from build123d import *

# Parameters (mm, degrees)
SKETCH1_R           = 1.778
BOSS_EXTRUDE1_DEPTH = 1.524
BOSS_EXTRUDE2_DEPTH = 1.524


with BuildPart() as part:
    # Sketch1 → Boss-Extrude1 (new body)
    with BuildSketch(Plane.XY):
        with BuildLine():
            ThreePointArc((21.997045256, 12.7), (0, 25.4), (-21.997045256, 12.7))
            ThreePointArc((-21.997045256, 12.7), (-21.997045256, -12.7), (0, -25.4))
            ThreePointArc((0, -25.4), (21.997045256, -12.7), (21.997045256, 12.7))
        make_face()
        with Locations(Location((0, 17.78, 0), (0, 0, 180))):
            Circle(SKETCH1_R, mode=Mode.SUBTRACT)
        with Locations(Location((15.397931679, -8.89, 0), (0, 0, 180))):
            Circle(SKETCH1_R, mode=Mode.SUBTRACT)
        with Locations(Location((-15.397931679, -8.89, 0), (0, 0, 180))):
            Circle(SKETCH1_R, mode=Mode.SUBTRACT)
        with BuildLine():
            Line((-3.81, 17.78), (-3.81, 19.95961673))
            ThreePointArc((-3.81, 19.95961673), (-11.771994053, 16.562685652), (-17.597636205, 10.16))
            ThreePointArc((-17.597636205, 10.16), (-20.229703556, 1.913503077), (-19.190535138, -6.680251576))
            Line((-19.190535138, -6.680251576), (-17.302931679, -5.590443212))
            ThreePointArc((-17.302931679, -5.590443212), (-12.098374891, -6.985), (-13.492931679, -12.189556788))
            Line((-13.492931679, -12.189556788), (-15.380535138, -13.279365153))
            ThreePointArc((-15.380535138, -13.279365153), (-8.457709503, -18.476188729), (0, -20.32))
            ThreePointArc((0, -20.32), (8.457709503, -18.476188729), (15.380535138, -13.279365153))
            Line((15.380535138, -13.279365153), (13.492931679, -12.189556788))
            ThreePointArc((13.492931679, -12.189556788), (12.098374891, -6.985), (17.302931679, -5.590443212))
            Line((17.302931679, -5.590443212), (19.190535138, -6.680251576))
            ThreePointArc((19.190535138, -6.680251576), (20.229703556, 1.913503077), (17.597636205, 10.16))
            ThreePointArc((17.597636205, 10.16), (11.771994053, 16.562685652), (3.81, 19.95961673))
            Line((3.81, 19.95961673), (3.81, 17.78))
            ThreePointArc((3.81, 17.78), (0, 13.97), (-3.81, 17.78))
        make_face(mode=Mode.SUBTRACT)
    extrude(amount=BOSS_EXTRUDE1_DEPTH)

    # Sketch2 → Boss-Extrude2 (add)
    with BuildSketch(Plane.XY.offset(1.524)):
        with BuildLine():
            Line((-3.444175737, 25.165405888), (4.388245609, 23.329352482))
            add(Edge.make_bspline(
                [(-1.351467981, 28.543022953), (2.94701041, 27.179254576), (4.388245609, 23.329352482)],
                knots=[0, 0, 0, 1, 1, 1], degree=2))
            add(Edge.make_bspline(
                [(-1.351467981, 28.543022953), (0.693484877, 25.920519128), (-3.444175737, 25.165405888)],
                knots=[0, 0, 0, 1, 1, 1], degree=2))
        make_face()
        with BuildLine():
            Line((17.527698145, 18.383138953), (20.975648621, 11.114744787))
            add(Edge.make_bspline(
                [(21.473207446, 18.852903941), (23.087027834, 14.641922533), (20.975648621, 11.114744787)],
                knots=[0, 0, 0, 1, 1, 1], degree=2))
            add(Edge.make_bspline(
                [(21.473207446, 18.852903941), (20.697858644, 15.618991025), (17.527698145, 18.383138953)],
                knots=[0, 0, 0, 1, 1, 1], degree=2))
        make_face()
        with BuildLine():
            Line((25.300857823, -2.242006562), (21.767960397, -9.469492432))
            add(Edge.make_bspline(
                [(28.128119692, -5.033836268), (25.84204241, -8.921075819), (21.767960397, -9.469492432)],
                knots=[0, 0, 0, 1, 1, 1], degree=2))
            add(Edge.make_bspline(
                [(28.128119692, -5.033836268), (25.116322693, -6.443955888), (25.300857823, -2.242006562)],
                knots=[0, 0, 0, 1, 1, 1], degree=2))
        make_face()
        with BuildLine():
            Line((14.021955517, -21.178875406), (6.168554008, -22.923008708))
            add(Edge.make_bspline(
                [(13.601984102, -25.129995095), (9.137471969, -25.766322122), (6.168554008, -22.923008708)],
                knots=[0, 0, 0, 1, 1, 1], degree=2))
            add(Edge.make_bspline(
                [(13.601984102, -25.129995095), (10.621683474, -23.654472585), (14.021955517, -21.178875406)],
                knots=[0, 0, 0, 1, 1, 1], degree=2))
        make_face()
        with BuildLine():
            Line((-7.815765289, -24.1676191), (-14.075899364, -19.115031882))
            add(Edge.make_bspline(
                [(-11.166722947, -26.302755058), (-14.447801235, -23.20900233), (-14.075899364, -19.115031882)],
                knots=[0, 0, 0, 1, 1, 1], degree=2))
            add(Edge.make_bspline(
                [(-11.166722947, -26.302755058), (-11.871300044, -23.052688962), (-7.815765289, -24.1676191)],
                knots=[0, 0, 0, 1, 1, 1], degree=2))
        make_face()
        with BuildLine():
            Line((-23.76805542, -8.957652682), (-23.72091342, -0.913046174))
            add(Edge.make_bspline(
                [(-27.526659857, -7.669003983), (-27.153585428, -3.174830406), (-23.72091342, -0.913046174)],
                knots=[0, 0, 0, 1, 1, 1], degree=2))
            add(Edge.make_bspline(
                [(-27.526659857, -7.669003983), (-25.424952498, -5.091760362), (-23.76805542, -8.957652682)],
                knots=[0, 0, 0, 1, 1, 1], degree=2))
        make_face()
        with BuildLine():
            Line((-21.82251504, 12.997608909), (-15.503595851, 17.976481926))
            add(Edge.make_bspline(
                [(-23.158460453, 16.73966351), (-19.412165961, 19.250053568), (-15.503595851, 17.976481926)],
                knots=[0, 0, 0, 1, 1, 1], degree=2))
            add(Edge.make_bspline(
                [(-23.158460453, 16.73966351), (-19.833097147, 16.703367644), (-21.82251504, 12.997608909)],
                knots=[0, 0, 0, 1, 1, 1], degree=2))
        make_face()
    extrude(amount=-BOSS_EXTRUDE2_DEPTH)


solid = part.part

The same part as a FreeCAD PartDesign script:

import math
import FreeCAD as App
import Part
import Sketcher
Q = App.Units.Quantity

doc = App.newDocument("Part")
params = doc.addObject("Spreadsheet::Sheet", "Params")
for row, (alias, value) in enumerate([
    ("sketch1_radius", "1 in"),
    ("sketch1_radius2", "0.8 in"),
    ("sketch1_diameter", "0.14 in"),
    ("sketch1_radius3", "0.15 in"),
    ("pad1_length", "0.06 in"),
    ("pad2_length", "0.06 in"),
], start=1):
    params.set(f"A{row}", alias)
    params.set(f"B{row}", "=" + value)
    params.setAlias(f"B{row}", alias)

body = doc.addObject("PartDesign::Body", "Body")

sketch1 = body.newObject("Sketcher::SketchObject", "Sketch")
sketch1.AttachmentSupport = (doc.getObject("XY_Plane"), [""])
sketch1.MapMode = "FlatFace"
sketch1.addGeometry([
    Part.ArcOfCircle(Part.Circle(App.Vector(0, 0, 0), App.Vector(0, 0, 1), 25.4), math.radians(30), math.radians(150)),
    Part.ArcOfCircle(Part.Circle(App.Vector(0, 0, 0), App.Vector(0, 0, 1), 25.4), math.radians(150), math.radians(270)),
    Part.ArcOfCircle(Part.Circle(App.Vector(0, 0, 0), App.Vector(0, 0, 1), 25.4), math.radians(-90), math.radians(30)),
    Part.Circle(App.Vector(-15.4, -8.9, 0), App.Vector(0, 0, 1), 1.8),
    Part.Circle(App.Vector(15.4, -8.9, 0), App.Vector(0, 0, 1), 1.8),
    Part.LineSegment(App.Vector(-3.8, 20, 0), App.Vector(-3.8, 17.8, 0)),
    Part.ArcOfCircle(Part.Circle(App.Vector(0, 17.8, 0), App.Vector(0, 0, 1), 3.8), math.radians(180), math.radians(360)),
    Part.LineSegment(App.Vector(3.8, 17.8, 0), App.Vector(3.8, 20, 0)),
    Part.ArcOfCircle(Part.Circle(App.Vector(0, 0, 0), App.Vector(0, 0, 1), 20.3), math.radians(30), math.radians(79)),
    Part.ArcOfCircle(Part.Circle(App.Vector(0, 0, 0), App.Vector(0, 0, 1), 20.3), math.radians(-19), math.radians(30)),
    Part.LineSegment(App.Vector(19.2, -6.7, 0), App.Vector(17.3, -5.6, 0)),
    Part.ArcOfCircle(Part.Circle(App.Vector(15.4, -8.9, 0), App.Vector(0, 0, 1), 3.8), math.radians(60), math.radians(240)),
    Part.LineSegment(App.Vector(13.5, -12.2, 0), App.Vector(15.4, -13.3, 0)),
    Part.ArcOfCircle(Part.Circle(App.Vector(0, 0, 0), App.Vector(0, 0, 1), 20.3), math.radians(-90), math.radians(-41)),
    Part.ArcOfCircle(Part.Circle(App.Vector(0, 0, 0), App.Vector(0, 0, 1), 20.3), math.radians(-139), math.radians(-90)),
    Part.LineSegment(App.Vector(-15.4, -13.3, 0), App.Vector(-13.5, -12.2, 0)),
    Part.ArcOfCircle(Part.Circle(App.Vector(-15.4, -8.9, 0), App.Vector(0, 0, 1), 3.8), math.radians(-60), math.radians(120)),
    Part.LineSegment(App.Vector(-17.3, -5.6, 0), App.Vector(-19.2, -6.7, 0)),
    Part.ArcOfCircle(Part.Circle(App.Vector(0, 0, 0), App.Vector(0, 0, 1), 20.3), math.radians(150), math.radians(199)),
    Part.ArcOfCircle(Part.Circle(App.Vector(0, 0, 0), App.Vector(0, 0, 1), 20.3), math.radians(101), math.radians(150)),
    Part.Circle(App.Vector(0, 17.8, 0), App.Vector(0, 0, 1), 1.8),
], False)
sketch1.addConstraint([
    Sketcher.Constraint("Tangent", 0, 2, 1, 1),
    Sketcher.Constraint("Tangent", 1, 2, 2, 1),
    Sketcher.Constraint("Tangent", 2, 2, 0, 1),
    Sketcher.Constraint("Tangent", 5, 2, 6, 1),
    Sketcher.Constraint("Tangent", 6, 2, 7, 1),
    Sketcher.Constraint("Coincident", 7, 2, 8, 2),
    Sketcher.Constraint("Tangent", 8, 1, 9, 2),
    Sketcher.Constraint("Coincident", 9, 1, 10, 1),
    Sketcher.Constraint("Tangent", 10, 2, 11, 1),
    Sketcher.Constraint("Tangent", 11, 2, 12, 1),
    Sketcher.Constraint("Coincident", 12, 2, 13, 2),
    Sketcher.Constraint("Tangent", 13, 1, 14, 2),
    Sketcher.Constraint("Coincident", 14, 1, 15, 1),
    Sketcher.Constraint("Tangent", 15, 2, 16, 1),
    Sketcher.Constraint("Tangent", 16, 2, 17, 1),
    Sketcher.Constraint("Coincident", 17, 2, 18, 2),
    Sketcher.Constraint("Tangent", 18, 1, 19, 2),
    Sketcher.Constraint("Coincident", 19, 1, 5, 1),
    Sketcher.Constraint("Vertical", 5),
    Sketcher.Constraint("Vertical", 7),
    Sketcher.Constraint("Coincident", 0, 3, -1, 1),
    Sketcher.Constraint("Coincident", 8, 3, -1, 1),
    Sketcher.Constraint("Coincident", 13, 3, -1, 1),
    Sketcher.Constraint("Coincident", 18, 3, -1, 1),
    Sketcher.Constraint("Coincident", 11, 3, 4, 3),
    Sketcher.Constraint("Coincident", 16, 3, 3, 3),
    Sketcher.Constraint("Coincident", 20, 3, 6, 3),
    Sketcher.Constraint("Equal", 3, 4),
    Sketcher.Constraint("Equal", 8, 9),
    Sketcher.Constraint("Equal", 6, 11),
    Sketcher.Constraint("Equal", 9, 13),
    Sketcher.Constraint("Equal", 13, 14),
    Sketcher.Constraint("Equal", 11, 16),
    Sketcher.Constraint("Equal", 14, 18),
    Sketcher.Constraint("Equal", 18, 19),
    Sketcher.Constraint("Equal", 4, 20),
    Sketcher.Constraint("Symmetric", 3, 3, 4, 3, -2),
    Sketcher.Constraint("PointOnObject", 6, 3, -2),
    Sketcher.Constraint("PointOnObject", 1, 2, -2),
    Sketcher.Constraint("PointOnObject", 13, 1, -2),
    Sketcher.Constraint("Parallel", 10, 12),
    Sketcher.Constraint("Parallel", 15, 17),
    Sketcher.Constraint("Horizontal", 0, 2, 2, 2),
    Sketcher.Constraint("Horizontal", 12, 2, 14, 1),
    Sketcher.Constraint("Horizontal", 8, 1, 18, 1),
    Sketcher.Constraint("Equal", 10, 12),
    Sketcher.Constraint("Radius", 0, Q("1 in")),
    Sketcher.Constraint("Radius", 8, Q("0.8 in")),
    Sketcher.Constraint("Diameter", 3, Q("0.14 in")),
    Sketcher.Constraint("Radius", 6, Q("0.15 in")),
    Sketcher.Constraint("Angle", 10, Q("150 deg")),
    Sketcher.Constraint("DistanceY", -1, 1, 6, 3, Q("0.7 in")),
    Sketcher.Constraint("DistanceY", -1, 1, 0, 2, Q("0.5 in")),
    Sketcher.Constraint("DistanceY", -1, 1, 8, 1, Q("0.4 in")),
    Sketcher.Constraint("DistanceY", 3, 3, -1, 1, Q("0.35 in")),
])
sketch1.setExpression("Constraints[46]", "Params.sketch1_radius")
sketch1.setExpression("Constraints[47]", "Params.sketch1_radius2")
sketch1.setExpression("Constraints[48]", "Params.sketch1_diameter")
sketch1.setExpression("Constraints[49]", "Params.sketch1_radius3")
pad1 = body.newObject("PartDesign::Pad", "Pad")
pad1.Profile = sketch1
pad1.setExpression("Length", "Params.pad1_length")

sketch2 = body.newObject("Sketcher::SketchObject", "Sketch001")
sketch2.AttachmentSupport = (doc.getObject("XY_Plane"), [""])
sketch2.MapMode = "FlatFace"
sketch2.AttachmentOffset = App.Placement(App.Vector(0, 0, 0.06 * 25.4), App.Rotation())
sketch2.addGeometry([
    Part.LineSegment(App.Vector(-3.444176, 25.165406, 0), App.Vector(4.388246, 23.329352, 0)),
    Part.BSplineCurve([App.Vector(-1.351468, 28.543023, 0), App.Vector(2.94701, 27.179255, 0), App.Vector(4.388246, 23.329352, 0)], [3, 3], [0, 1], False, 2, [1, 1, 1], False),
    Part.BSplineCurve([App.Vector(-1.351468, 28.543023, 0), App.Vector(0.693485, 25.920519, 0), App.Vector(-3.444176, 25.165406, 0)], [3, 3], [0, 1], False, 2, [1, 1, 1], False),
    Part.LineSegment(App.Vector(17.527698, 18.383139, 0), App.Vector(20.975649, 11.114745, 0)),
    Part.BSplineCurve([App.Vector(21.473207, 18.852904, 0), App.Vector(23.087028, 14.641923, 0), App.Vector(20.975649, 11.114745, 0)], [3, 3], [0, 1], False, 2, [1, 1, 1], False),
    Part.BSplineCurve([App.Vector(21.473207, 18.852904, 0), App.Vector(20.697859, 15.618991, 0), App.Vector(17.527698, 18.383139, 0)], [3, 3], [0, 1], False, 2, [1, 1, 1], False),
    Part.LineSegment(App.Vector(25.300858, -2.242007, 0), App.Vector(21.76796, -9.469492, 0)),
    Part.BSplineCurve([App.Vector(28.12812, -5.033836, 0), App.Vector(25.842042, -8.921076, 0), App.Vector(21.76796, -9.469492, 0)], [3, 3], [0, 1], False, 2, [1, 1, 1], False),
    Part.BSplineCurve([App.Vector(28.12812, -5.033836, 0), App.Vector(25.116323, -6.443956, 0), App.Vector(25.300858, -2.242007, 0)], [3, 3], [0, 1], False, 2, [1, 1, 1], False),
    Part.LineSegment(App.Vector(14.021956, -21.178875, 0), App.Vector(6.168554, -22.923009, 0)),
    Part.BSplineCurve([App.Vector(13.601984, -25.129995, 0), App.Vector(9.137472, -25.766322, 0), App.Vector(6.168554, -22.923009, 0)], [3, 3], [0, 1], False, 2, [1, 1, 1], False),
    Part.BSplineCurve([App.Vector(13.601984, -25.129995, 0), App.Vector(10.621683, -23.654473, 0), App.Vector(14.021956, -21.178875, 0)], [3, 3], [0, 1], False, 2, [1, 1, 1], False),
    Part.LineSegment(App.Vector(-7.815765, -24.167619, 0), App.Vector(-14.075899, -19.115032, 0)),
    Part.BSplineCurve([App.Vector(-11.166723, -26.302755, 0), App.Vector(-14.447801, -23.209002, 0), App.Vector(-14.075899, -19.115032, 0)], [3, 3], [0, 1], False, 2, [1, 1, 1], False),
    Part.BSplineCurve([App.Vector(-11.166723, -26.302755, 0), App.Vector(-11.8713, -23.052689, 0), App.Vector(-7.815765, -24.167619, 0)], [3, 3], [0, 1], False, 2, [1, 1, 1], False),
    Part.LineSegment(App.Vector(-23.768055, -8.957653, 0), App.Vector(-23.720913, -0.913046, 0)),
    Part.BSplineCurve([App.Vector(-27.52666, -7.669004, 0), App.Vector(-27.153585, -3.17483, 0), App.Vector(-23.720913, -0.913046, 0)], [3, 3], [0, 1], False, 2, [1, 1, 1], False),
    Part.BSplineCurve([App.Vector(-27.52666, -7.669004, 0), App.Vector(-25.424952, -5.09176, 0), App.Vector(-23.768055, -8.957653, 0)], [3, 3], [0, 1], False, 2, [1, 1, 1], False),
    Part.LineSegment(App.Vector(-21.822515, 12.997609, 0), App.Vector(-15.503596, 17.976482, 0)),
    Part.BSplineCurve([App.Vector(-23.15846, 16.739664, 0), App.Vector(-19.412166, 19.250054, 0), App.Vector(-15.503596, 17.976482, 0)], [3, 3], [0, 1], False, 2, [1, 1, 1], False),
    Part.BSplineCurve([App.Vector(-23.15846, 16.739664, 0), App.Vector(-19.833097, 16.703368, 0), App.Vector(-21.822515, 12.997609, 0)], [3, 3], [0, 1], False, 2, [1, 1, 1], False),
], False)
sketch2.addConstraint([
    Sketcher.Constraint("Block", 1),
    Sketcher.Constraint("Block", 2),
    Sketcher.Constraint("Block", 4),
    Sketcher.Constraint("Block", 5),
    Sketcher.Constraint("Block", 7),
    Sketcher.Constraint("Block", 8),
    Sketcher.Constraint("Block", 10),
    Sketcher.Constraint("Block", 11),
    Sketcher.Constraint("Block", 13),
    Sketcher.Constraint("Block", 14),
    Sketcher.Constraint("Block", 16),
    Sketcher.Constraint("Block", 17),
    Sketcher.Constraint("Block", 19),
    Sketcher.Constraint("Block", 20),
    Sketcher.Constraint("Coincident", 0, 2, 1, 2),
    Sketcher.Constraint("Coincident", 2, 2, 0, 1),
    Sketcher.Constraint("Coincident", 3, 2, 4, 2),
    Sketcher.Constraint("Coincident", 5, 2, 3, 1),
    Sketcher.Constraint("Coincident", 6, 2, 7, 2),
    Sketcher.Constraint("Coincident", 8, 2, 6, 1),
    Sketcher.Constraint("Coincident", 9, 2, 10, 2),
    Sketcher.Constraint("Coincident", 11, 2, 9, 1),
    Sketcher.Constraint("Coincident", 12, 2, 13, 2),
    Sketcher.Constraint("Coincident", 14, 2, 12, 1),
    Sketcher.Constraint("Coincident", 15, 2, 16, 2),
    Sketcher.Constraint("Coincident", 17, 2, 15, 1),
    Sketcher.Constraint("Coincident", 18, 2, 19, 2),
    Sketcher.Constraint("Coincident", 20, 2, 18, 1),
])
pad2 = body.newObject("PartDesign::Pad", "Pad001")
pad2.Profile = sketch2
pad2.setExpression("Length", "Params.pad2_length")
pad2.Reversed = True

doc.recompute()
